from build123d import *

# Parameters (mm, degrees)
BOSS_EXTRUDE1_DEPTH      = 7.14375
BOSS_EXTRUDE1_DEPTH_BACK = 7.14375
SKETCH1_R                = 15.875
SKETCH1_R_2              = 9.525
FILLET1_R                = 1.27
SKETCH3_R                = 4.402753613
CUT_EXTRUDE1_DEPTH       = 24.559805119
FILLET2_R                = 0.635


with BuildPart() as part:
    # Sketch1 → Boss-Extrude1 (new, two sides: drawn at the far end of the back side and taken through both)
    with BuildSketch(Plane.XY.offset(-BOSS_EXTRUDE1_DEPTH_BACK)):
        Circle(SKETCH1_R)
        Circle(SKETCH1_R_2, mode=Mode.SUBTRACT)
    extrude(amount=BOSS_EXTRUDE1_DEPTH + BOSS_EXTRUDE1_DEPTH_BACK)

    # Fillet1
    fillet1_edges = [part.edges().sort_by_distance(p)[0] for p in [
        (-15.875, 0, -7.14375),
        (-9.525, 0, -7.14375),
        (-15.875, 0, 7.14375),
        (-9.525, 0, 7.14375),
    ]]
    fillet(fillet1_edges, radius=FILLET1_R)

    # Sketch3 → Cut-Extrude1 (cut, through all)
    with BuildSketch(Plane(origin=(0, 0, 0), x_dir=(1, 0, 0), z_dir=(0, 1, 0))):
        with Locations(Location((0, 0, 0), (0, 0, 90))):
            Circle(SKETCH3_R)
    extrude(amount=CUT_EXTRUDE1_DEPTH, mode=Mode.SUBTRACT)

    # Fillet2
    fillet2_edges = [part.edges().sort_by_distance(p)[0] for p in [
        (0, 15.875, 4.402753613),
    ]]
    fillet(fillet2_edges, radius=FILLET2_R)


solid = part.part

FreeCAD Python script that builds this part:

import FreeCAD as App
import Part
import Sketcher
Q = App.Units.Quantity


def edges_at(feature, points):
    """Names of the edges that pass closest to the given points."""
    edges = feature.Shape.Edges
    near = lambda p: min(range(len(edges)), key=lambda i: edges[i].distToShape(Part.Vertex(*p))[0])
    return sorted({f"Edge{near(p) + 1}" for p in points})

doc = App.newDocument("Part")
body = doc.addObject("PartDesign::Body", "Body")

# Sketch on XY plane
sketch1 = body.newObject("Sketcher::SketchObject", "Sketch")
sketch1.AttachmentSupport = (doc.getObject("XY_Plane"), [""])
sketch1.MapMode = "FlatFace"
sketch1.addGeometry([
    Part.Circle(App.Vector(0, 0, 0), App.Vector(0, 0, 1), 16),
    Part.Circle(App.Vector(0, 0, 0), App.Vector(0, 0, 1), 10),
], False)
sketch1.addConstraint([
    Sketcher.Constraint("Coincident", 0, 3, -1, 1),
    Sketcher.Constraint("Coincident", 1, 3, -1, 1),
    Sketcher.Constraint("Diameter", 0, Q("1.25 in")),
    Sketcher.Constraint("Diameter", 1, Q("0.75 in")),
])
pad1 = body.newObject("PartDesign::Pad", "Pad")
pad1.Profile = sketch1
pad1.Type = "TwoLengths"
pad1.Length = Q("0.28125 in")
pad1.Length2 = Q("0.28125 in")
doc.recompute()

fillet = body.newObject("PartDesign::Fillet", "Fillet")
fillet.Base = (pad1, edges_at(pad1, [
    (-15.875, 0, -7.144),
    (-9.525, 0, -7.144),
    (-15.875, 0, 7.144),
    (-9.525, 0, 7.144),
]))
fillet.Radius = Q("0.05 in")

# Sketch on XZ plane
sketch2 = body.newObject("Sketcher::SketchObject", "Sketch001")
sketch2.AttachmentSupport = (doc.getObject("XZ_Plane"), [""])
sketch2.MapMode = "FlatFace"
sketch2.addGeometry(Part.Circle(App.Vector(0, 0, 0), App.Vector(0, 0, 1), 4.4), False)
sketch2.addConstraint([
    Sketcher.Constraint("Coincident", 0, 3, -1, 1),
    Sketcher.Constraint("Diameter", 0, 8.805507),
])
pocket1 = body.newObject("PartDesign::Pocket", "Pocket")
pocket1.Profile = sketch2
pocket1.Type = "ThroughAll"
doc.recompute()

fillet2 = body.newObject("PartDesign::Fillet", "Fillet001")
fillet2.Base = (pocket1, edges_at(pocket1, [(0, 15.875, 4.403)]))
fillet2.Radius = Q("0.025 in")

doc.recompute()
